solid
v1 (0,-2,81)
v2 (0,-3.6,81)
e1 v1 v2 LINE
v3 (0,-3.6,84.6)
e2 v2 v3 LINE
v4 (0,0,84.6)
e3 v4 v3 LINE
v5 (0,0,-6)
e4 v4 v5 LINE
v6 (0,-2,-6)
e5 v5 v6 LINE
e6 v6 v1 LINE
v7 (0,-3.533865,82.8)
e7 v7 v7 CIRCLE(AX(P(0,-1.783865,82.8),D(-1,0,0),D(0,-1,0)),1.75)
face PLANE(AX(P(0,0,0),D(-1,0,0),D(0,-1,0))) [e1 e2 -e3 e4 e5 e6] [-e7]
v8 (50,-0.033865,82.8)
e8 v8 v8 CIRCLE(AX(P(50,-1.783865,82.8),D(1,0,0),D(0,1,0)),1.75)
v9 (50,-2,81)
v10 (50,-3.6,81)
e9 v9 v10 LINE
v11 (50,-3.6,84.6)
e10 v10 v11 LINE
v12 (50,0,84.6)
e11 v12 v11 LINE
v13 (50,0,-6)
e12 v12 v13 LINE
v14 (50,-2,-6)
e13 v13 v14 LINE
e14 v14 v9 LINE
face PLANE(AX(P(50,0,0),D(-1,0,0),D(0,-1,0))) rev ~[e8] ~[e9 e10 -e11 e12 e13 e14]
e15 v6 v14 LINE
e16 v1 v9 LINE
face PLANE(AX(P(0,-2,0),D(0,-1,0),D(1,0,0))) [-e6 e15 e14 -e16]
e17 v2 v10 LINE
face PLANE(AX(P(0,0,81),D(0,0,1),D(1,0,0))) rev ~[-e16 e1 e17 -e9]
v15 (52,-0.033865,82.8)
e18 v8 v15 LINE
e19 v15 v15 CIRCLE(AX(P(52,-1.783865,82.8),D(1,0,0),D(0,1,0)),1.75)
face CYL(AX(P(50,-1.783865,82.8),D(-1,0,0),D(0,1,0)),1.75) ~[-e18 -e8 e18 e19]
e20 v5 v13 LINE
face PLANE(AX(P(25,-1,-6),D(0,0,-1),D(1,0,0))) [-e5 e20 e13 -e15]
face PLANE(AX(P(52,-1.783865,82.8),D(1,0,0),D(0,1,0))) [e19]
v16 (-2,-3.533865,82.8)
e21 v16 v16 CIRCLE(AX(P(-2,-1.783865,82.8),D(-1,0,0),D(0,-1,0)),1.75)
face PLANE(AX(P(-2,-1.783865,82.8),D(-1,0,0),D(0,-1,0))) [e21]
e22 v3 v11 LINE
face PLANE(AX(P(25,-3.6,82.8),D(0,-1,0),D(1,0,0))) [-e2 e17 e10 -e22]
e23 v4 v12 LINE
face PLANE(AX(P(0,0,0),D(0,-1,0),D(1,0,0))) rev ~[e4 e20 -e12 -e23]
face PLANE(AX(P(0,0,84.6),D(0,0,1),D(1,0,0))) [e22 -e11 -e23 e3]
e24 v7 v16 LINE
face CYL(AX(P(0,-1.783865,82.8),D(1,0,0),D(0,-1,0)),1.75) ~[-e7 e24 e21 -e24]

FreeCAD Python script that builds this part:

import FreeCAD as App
import Part
import Sketcher

doc = App.newDocument("Part")
body = doc.addObject("PartDesign::Body", "Body")

# Sketch on XZ plane
sketch1 = doc.addObject("Sketcher::SketchObject", "Sketch")
body.addObject(sketch1)
sketch1.AttachmentSupport = (doc.XZ_Plane, [""])
sketch1.MapMode = "FlatFace"
sketch1.addGeometry([
    Part.LineSegment(App.Vector(0, 81, 0), App.Vector(0, 0, 0)),
    Part.LineSegment(App.Vector(0, 0, 0), App.Vector(50, 0, 0)),
    Part.LineSegment(App.Vector(50, 0, 0), App.Vector(50, 81, 0)),
    Part.LineSegment(App.Vector(50, 81, 0), App.Vector(0, 81, 0)),
], False)
sketch1.addConstraint([
    Sketcher.Constraint("Coincident", 0, 2, 1, 1),
    Sketcher.Constraint("Coincident", 1, 2, 2, 1),
    Sketcher.Constraint("Coincident", 2, 2, 3, 1),
    Sketcher.Constraint("Coincident", 3, 2, 0, 1),
    Sketcher.Constraint("Vertical", 0),
    Sketcher.Constraint("Horizontal", 1),
    Sketcher.Constraint("Vertical", 2),
    Sketcher.Constraint("Horizontal", 3),
    Sketcher.Constraint("Coincident", 0, 2, -1, 1),
    Sketcher.Constraint("DistanceX", 1, 1, 1, 2, 50.0),
    Sketcher.Constraint("DistanceY", 0, 2, 0, 1, 81.0),
])
pad1 = doc.addObject("PartDesign::Pad", "Pad")
body.addObject(pad1)
pad1.Profile = sketch1
pad1.Length = 2

# Sketch on XZ plane
sketch2 = doc.addObject("Sketcher::SketchObject", "Sketch001")
body.addObject(sketch2)
sketch2.AttachmentSupport = (doc.XZ_Plane, [""])
sketch2.MapMode = "FlatFace"
sketch2.addGeometry([
    Part.LineSegment(App.Vector(0, 84.6, 0), App.Vector(0, 81, 0)),
    Part.LineSegment(App.Vector(0, 81, 0), App.Vector(50, 81, 0)),
    Part.LineSegment(App.Vector(50, 81, 0), App.Vector(50, 84.6, 0)),
    Part.LineSegment(App.Vector(50, 84.6, 0), App.Vector(0, 84.6, 0)),
], False)
sketch2.addConstraint([
    Sketcher.Constraint("Coincident", 0, 2, 1, 1),
    Sketcher.Constraint("Coincident", 1, 2, 2, 1),
    Sketcher.Constraint("Coincident", 2, 2, 3, 1),
    Sketcher.Constraint("Coincident", 3, 2, 0, 1),
    Sketcher.Constraint("Vertical", 0),
    Sketcher.Constraint("Horizontal", 1),
    Sketcher.Constraint("Vertical", 2),
    Sketcher.Constraint("Horizontal", 3),
    Sketcher.Constraint("PointOnObject", 0, 2, -2),
    Sketcher.Constraint("DistanceX", 1, 1, 1, 2, 50.0),
    Sketcher.Constraint("DistanceY", 0, 2, 0, 1, 3.6),
    Sketcher.Constraint("DistanceY", -1, 1, 0, 2, 81.0),
])
pad2 = doc.addObject("PartDesign::Pad", "Pad001")
body.addObject(pad2)
pad2.Profile = sketch2
pad2.Length = 3.6

# Sketch on YZ plane
sketch3 = doc.addObject("Sketcher::SketchObject", "Sketch002")
body.addObject(sketch3)
sketch3.AttachmentSupport = (doc.YZ_Plane, [""])
sketch3.MapMode = "FlatFace"
sketch3.addGeometry(Part.Circle(App.Vector(-1.8, 82.8, 0), App.Vector(0, 0, 1), 1.8), False)
sketch3.addConstraint([
    Sketcher.Constraint("Diameter", 0, 3.5),
    Sketcher.Constraint("DistanceY", -1, 1, 0, 3, 82.8),
    Sketcher.Constraint("DistanceX", 0, 3, -1, 1, 1.783865),
])
pad3 = doc.addObject("PartDesign::Pad", "Pad002")
body.addObject(pad3)
pad3.Profile = sketch3
pad3.Length = 2
pad3.Reversed = True

# Sketch on YZ plane
sketch4 = doc.addObject("Sketcher::SketchObject", "Sketch003")
body.addObject(sketch4)
sketch4.AttachmentSupport = (doc.YZ_Plane, [""])
sketch4.MapMode = "FlatFace"
sketch4.AttachmentOffset = App.Placement(App.Vector(0, 0, 50), App.Rotation())
sketch4.addGeometry(Part.Circle(App.Vector(-1.8, 82.8, 0), App.Vector(0, 0, 1), 1.8), False)
sketch4.addConstraint([
    Sketcher.Constraint("Diameter", 0, 3.5),
    Sketcher.Constraint("DistanceY", -1, 1, 0, 3, 82.8),
    Sketcher.Constraint("DistanceX", 0, 3, -1, 1, 1.783865),
])
pad4 = doc.addObject("PartDesign::Pad", "Pad003")
body.addObject(pad4)
pad4.Profile = sketch4
pad4.Length = 2

# Sketch on XY plane
sketch5 = doc.addObject("Sketcher::SketchObject", "Sketch004")
body.addObject(sketch5)
sketch5.AttachmentSupport = (doc.XY_Plane, [""])
sketch5.MapMode = "FlatFace"
sketch5.addGeometry([
    Part.LineSegment(App.Vector(0, -2, 0), App.Vector(0, 0, 0)),
    Part.LineSegment(App.Vector(0, 0, 0), App.Vector(50, 0, 0)),
    Part.LineSegment(App.Vector(50, 0, 0), App.Vector(50, -2, 0)),
    Part.LineSegment(App.Vector(50, -2, 0), App.Vector(0, -2, 0)),
], False)
sketch5.addConstraint([
    Sketcher.Constraint("Coincident", 0, 2, 1, 1),
    Sketcher.Constraint("Coincident", 1, 2, 2, 1),
    Sketcher.Constraint("Coincident", 2, 2, 3, 1),
    Sketcher.Constraint("Coincident", 3, 2, 0, 1),
    Sketcher.Constraint("Vertical", 0),
    Sketcher.Constraint("Horizontal", 1),
    Sketcher.Constraint("Vertical", 2),
    Sketcher.Constraint("Horizontal", 3),
    Sketcher.Constraint("Coincident", 0, 2, -1, 1),
    Sketcher.Constraint("DistanceX", 1, 1, 1, 2, 50.0),
    Sketcher.Constraint("DistanceY", 0, 1, 0, 2, 2.0),
])
pad5 = doc.addObject("PartDesign::Pad", "Pad004")
body.addObject(pad5)
pad5.Profile = sketch5
pad5.Length = 6
pad5.Reversed = True

doc.recompute()
